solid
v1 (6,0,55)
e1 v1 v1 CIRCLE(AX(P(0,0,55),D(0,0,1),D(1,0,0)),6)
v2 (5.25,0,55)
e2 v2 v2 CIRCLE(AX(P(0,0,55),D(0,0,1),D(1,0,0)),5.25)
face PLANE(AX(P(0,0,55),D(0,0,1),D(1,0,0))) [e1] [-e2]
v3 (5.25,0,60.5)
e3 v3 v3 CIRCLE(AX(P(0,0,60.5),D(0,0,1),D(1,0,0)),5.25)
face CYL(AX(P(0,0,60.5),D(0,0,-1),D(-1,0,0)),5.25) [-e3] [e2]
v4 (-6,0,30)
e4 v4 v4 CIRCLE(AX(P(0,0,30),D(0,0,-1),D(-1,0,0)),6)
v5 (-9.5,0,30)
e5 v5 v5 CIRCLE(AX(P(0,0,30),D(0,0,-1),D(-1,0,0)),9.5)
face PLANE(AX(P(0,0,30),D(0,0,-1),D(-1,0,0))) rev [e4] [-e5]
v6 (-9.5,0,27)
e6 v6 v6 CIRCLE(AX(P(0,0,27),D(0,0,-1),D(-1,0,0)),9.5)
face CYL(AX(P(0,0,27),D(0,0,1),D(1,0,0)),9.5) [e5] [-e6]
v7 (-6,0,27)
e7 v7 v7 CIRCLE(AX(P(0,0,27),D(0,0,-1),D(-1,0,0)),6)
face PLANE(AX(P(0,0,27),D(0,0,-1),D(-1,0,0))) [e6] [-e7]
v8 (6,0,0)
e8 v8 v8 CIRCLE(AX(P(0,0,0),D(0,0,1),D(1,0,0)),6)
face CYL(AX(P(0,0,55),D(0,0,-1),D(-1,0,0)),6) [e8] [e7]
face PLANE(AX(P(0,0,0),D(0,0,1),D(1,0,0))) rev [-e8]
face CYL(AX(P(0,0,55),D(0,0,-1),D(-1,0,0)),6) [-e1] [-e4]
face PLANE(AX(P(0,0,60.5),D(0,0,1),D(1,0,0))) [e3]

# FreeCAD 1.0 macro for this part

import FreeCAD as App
import Part
import Sketcher
Q = App.Units.Quantity

doc = App.newDocument("Part")
body = doc.addObject("PartDesign::Body", "Body")

# Sketch on XY plane
sketch1 = body.newObject("Sketcher::SketchObject", "Sketch")
sketch1.AttachmentSupport = (doc.getObject("XY_Plane"), [""])
sketch1.MapMode = "FlatFace"
sketch1.addGeometry(Part.Circle(App.Vector(0, 0, 0), App.Vector(0, 0, 1), 6), False)
sketch1.addConstraint(Sketcher.Constraint("Coincident", 0, 3, -1, 1))
sketch1.addConstraint(Sketcher.Constraint("Diameter", 0, Q("12 mm")))
pad1 = body.newObject("PartDesign::Pad", "Pad")
pad1.Profile = sketch1
pad1.Length = 55

# Sketch on XY plane
sketch2 = body.newObject("Sketcher::SketchObject", "Sketch001")
sketch2.AttachmentSupport = (doc.getObject("XY_Plane"), [""])
sketch2.MapMode = "FlatFace"
sketch2.AttachmentOffset = App.Placement(App.Vector(0, 0, 55), App.Rotation())
sketch2.addGeometry(Part.Circle(App.Vector(0, 0, 0), App.Vector(0, 0, 1), 5.25), False)
sketch2.addConstraint(Sketcher.Constraint("Coincident", 0, 3, -1, 1))
sketch2.addConstraint(Sketcher.Constraint("Diameter", 0, Q("10.5 mm")))
pad2 = body.newObject("PartDesign::Pad", "Pad001")
pad2.Profile = sketch2
pad2.Length = 5.5

# Sketch on XY plane
sketch3 = body.newObject("Sketcher::SketchObject", "Sketch002")
sketch3.AttachmentSupport = (doc.getObject("XY_Plane"), [""])
sketch3.MapMode = "FlatFace"
sketch3.AttachmentOffset = App.Placement(App.Vector(0, 0, 30), App.Rotation())
sketch3.addGeometry(Part.Circle(App.Vector(0, 0, 0), App.Vector(0, 0, 1), 9.5), False)
sketch3.addConstraint(Sketcher.Constraint("Coincident", 0, 3, -1, 1))
sketch3.addConstraint(Sketcher.Constraint("Diameter", 0, Q("19 mm")))
pad3 = body.newObject("PartDesign::Pad", "Pad002")
pad3.Profile = sketch3
pad3.Length = 3
pad3.Reversed = True

doc.recompute()
